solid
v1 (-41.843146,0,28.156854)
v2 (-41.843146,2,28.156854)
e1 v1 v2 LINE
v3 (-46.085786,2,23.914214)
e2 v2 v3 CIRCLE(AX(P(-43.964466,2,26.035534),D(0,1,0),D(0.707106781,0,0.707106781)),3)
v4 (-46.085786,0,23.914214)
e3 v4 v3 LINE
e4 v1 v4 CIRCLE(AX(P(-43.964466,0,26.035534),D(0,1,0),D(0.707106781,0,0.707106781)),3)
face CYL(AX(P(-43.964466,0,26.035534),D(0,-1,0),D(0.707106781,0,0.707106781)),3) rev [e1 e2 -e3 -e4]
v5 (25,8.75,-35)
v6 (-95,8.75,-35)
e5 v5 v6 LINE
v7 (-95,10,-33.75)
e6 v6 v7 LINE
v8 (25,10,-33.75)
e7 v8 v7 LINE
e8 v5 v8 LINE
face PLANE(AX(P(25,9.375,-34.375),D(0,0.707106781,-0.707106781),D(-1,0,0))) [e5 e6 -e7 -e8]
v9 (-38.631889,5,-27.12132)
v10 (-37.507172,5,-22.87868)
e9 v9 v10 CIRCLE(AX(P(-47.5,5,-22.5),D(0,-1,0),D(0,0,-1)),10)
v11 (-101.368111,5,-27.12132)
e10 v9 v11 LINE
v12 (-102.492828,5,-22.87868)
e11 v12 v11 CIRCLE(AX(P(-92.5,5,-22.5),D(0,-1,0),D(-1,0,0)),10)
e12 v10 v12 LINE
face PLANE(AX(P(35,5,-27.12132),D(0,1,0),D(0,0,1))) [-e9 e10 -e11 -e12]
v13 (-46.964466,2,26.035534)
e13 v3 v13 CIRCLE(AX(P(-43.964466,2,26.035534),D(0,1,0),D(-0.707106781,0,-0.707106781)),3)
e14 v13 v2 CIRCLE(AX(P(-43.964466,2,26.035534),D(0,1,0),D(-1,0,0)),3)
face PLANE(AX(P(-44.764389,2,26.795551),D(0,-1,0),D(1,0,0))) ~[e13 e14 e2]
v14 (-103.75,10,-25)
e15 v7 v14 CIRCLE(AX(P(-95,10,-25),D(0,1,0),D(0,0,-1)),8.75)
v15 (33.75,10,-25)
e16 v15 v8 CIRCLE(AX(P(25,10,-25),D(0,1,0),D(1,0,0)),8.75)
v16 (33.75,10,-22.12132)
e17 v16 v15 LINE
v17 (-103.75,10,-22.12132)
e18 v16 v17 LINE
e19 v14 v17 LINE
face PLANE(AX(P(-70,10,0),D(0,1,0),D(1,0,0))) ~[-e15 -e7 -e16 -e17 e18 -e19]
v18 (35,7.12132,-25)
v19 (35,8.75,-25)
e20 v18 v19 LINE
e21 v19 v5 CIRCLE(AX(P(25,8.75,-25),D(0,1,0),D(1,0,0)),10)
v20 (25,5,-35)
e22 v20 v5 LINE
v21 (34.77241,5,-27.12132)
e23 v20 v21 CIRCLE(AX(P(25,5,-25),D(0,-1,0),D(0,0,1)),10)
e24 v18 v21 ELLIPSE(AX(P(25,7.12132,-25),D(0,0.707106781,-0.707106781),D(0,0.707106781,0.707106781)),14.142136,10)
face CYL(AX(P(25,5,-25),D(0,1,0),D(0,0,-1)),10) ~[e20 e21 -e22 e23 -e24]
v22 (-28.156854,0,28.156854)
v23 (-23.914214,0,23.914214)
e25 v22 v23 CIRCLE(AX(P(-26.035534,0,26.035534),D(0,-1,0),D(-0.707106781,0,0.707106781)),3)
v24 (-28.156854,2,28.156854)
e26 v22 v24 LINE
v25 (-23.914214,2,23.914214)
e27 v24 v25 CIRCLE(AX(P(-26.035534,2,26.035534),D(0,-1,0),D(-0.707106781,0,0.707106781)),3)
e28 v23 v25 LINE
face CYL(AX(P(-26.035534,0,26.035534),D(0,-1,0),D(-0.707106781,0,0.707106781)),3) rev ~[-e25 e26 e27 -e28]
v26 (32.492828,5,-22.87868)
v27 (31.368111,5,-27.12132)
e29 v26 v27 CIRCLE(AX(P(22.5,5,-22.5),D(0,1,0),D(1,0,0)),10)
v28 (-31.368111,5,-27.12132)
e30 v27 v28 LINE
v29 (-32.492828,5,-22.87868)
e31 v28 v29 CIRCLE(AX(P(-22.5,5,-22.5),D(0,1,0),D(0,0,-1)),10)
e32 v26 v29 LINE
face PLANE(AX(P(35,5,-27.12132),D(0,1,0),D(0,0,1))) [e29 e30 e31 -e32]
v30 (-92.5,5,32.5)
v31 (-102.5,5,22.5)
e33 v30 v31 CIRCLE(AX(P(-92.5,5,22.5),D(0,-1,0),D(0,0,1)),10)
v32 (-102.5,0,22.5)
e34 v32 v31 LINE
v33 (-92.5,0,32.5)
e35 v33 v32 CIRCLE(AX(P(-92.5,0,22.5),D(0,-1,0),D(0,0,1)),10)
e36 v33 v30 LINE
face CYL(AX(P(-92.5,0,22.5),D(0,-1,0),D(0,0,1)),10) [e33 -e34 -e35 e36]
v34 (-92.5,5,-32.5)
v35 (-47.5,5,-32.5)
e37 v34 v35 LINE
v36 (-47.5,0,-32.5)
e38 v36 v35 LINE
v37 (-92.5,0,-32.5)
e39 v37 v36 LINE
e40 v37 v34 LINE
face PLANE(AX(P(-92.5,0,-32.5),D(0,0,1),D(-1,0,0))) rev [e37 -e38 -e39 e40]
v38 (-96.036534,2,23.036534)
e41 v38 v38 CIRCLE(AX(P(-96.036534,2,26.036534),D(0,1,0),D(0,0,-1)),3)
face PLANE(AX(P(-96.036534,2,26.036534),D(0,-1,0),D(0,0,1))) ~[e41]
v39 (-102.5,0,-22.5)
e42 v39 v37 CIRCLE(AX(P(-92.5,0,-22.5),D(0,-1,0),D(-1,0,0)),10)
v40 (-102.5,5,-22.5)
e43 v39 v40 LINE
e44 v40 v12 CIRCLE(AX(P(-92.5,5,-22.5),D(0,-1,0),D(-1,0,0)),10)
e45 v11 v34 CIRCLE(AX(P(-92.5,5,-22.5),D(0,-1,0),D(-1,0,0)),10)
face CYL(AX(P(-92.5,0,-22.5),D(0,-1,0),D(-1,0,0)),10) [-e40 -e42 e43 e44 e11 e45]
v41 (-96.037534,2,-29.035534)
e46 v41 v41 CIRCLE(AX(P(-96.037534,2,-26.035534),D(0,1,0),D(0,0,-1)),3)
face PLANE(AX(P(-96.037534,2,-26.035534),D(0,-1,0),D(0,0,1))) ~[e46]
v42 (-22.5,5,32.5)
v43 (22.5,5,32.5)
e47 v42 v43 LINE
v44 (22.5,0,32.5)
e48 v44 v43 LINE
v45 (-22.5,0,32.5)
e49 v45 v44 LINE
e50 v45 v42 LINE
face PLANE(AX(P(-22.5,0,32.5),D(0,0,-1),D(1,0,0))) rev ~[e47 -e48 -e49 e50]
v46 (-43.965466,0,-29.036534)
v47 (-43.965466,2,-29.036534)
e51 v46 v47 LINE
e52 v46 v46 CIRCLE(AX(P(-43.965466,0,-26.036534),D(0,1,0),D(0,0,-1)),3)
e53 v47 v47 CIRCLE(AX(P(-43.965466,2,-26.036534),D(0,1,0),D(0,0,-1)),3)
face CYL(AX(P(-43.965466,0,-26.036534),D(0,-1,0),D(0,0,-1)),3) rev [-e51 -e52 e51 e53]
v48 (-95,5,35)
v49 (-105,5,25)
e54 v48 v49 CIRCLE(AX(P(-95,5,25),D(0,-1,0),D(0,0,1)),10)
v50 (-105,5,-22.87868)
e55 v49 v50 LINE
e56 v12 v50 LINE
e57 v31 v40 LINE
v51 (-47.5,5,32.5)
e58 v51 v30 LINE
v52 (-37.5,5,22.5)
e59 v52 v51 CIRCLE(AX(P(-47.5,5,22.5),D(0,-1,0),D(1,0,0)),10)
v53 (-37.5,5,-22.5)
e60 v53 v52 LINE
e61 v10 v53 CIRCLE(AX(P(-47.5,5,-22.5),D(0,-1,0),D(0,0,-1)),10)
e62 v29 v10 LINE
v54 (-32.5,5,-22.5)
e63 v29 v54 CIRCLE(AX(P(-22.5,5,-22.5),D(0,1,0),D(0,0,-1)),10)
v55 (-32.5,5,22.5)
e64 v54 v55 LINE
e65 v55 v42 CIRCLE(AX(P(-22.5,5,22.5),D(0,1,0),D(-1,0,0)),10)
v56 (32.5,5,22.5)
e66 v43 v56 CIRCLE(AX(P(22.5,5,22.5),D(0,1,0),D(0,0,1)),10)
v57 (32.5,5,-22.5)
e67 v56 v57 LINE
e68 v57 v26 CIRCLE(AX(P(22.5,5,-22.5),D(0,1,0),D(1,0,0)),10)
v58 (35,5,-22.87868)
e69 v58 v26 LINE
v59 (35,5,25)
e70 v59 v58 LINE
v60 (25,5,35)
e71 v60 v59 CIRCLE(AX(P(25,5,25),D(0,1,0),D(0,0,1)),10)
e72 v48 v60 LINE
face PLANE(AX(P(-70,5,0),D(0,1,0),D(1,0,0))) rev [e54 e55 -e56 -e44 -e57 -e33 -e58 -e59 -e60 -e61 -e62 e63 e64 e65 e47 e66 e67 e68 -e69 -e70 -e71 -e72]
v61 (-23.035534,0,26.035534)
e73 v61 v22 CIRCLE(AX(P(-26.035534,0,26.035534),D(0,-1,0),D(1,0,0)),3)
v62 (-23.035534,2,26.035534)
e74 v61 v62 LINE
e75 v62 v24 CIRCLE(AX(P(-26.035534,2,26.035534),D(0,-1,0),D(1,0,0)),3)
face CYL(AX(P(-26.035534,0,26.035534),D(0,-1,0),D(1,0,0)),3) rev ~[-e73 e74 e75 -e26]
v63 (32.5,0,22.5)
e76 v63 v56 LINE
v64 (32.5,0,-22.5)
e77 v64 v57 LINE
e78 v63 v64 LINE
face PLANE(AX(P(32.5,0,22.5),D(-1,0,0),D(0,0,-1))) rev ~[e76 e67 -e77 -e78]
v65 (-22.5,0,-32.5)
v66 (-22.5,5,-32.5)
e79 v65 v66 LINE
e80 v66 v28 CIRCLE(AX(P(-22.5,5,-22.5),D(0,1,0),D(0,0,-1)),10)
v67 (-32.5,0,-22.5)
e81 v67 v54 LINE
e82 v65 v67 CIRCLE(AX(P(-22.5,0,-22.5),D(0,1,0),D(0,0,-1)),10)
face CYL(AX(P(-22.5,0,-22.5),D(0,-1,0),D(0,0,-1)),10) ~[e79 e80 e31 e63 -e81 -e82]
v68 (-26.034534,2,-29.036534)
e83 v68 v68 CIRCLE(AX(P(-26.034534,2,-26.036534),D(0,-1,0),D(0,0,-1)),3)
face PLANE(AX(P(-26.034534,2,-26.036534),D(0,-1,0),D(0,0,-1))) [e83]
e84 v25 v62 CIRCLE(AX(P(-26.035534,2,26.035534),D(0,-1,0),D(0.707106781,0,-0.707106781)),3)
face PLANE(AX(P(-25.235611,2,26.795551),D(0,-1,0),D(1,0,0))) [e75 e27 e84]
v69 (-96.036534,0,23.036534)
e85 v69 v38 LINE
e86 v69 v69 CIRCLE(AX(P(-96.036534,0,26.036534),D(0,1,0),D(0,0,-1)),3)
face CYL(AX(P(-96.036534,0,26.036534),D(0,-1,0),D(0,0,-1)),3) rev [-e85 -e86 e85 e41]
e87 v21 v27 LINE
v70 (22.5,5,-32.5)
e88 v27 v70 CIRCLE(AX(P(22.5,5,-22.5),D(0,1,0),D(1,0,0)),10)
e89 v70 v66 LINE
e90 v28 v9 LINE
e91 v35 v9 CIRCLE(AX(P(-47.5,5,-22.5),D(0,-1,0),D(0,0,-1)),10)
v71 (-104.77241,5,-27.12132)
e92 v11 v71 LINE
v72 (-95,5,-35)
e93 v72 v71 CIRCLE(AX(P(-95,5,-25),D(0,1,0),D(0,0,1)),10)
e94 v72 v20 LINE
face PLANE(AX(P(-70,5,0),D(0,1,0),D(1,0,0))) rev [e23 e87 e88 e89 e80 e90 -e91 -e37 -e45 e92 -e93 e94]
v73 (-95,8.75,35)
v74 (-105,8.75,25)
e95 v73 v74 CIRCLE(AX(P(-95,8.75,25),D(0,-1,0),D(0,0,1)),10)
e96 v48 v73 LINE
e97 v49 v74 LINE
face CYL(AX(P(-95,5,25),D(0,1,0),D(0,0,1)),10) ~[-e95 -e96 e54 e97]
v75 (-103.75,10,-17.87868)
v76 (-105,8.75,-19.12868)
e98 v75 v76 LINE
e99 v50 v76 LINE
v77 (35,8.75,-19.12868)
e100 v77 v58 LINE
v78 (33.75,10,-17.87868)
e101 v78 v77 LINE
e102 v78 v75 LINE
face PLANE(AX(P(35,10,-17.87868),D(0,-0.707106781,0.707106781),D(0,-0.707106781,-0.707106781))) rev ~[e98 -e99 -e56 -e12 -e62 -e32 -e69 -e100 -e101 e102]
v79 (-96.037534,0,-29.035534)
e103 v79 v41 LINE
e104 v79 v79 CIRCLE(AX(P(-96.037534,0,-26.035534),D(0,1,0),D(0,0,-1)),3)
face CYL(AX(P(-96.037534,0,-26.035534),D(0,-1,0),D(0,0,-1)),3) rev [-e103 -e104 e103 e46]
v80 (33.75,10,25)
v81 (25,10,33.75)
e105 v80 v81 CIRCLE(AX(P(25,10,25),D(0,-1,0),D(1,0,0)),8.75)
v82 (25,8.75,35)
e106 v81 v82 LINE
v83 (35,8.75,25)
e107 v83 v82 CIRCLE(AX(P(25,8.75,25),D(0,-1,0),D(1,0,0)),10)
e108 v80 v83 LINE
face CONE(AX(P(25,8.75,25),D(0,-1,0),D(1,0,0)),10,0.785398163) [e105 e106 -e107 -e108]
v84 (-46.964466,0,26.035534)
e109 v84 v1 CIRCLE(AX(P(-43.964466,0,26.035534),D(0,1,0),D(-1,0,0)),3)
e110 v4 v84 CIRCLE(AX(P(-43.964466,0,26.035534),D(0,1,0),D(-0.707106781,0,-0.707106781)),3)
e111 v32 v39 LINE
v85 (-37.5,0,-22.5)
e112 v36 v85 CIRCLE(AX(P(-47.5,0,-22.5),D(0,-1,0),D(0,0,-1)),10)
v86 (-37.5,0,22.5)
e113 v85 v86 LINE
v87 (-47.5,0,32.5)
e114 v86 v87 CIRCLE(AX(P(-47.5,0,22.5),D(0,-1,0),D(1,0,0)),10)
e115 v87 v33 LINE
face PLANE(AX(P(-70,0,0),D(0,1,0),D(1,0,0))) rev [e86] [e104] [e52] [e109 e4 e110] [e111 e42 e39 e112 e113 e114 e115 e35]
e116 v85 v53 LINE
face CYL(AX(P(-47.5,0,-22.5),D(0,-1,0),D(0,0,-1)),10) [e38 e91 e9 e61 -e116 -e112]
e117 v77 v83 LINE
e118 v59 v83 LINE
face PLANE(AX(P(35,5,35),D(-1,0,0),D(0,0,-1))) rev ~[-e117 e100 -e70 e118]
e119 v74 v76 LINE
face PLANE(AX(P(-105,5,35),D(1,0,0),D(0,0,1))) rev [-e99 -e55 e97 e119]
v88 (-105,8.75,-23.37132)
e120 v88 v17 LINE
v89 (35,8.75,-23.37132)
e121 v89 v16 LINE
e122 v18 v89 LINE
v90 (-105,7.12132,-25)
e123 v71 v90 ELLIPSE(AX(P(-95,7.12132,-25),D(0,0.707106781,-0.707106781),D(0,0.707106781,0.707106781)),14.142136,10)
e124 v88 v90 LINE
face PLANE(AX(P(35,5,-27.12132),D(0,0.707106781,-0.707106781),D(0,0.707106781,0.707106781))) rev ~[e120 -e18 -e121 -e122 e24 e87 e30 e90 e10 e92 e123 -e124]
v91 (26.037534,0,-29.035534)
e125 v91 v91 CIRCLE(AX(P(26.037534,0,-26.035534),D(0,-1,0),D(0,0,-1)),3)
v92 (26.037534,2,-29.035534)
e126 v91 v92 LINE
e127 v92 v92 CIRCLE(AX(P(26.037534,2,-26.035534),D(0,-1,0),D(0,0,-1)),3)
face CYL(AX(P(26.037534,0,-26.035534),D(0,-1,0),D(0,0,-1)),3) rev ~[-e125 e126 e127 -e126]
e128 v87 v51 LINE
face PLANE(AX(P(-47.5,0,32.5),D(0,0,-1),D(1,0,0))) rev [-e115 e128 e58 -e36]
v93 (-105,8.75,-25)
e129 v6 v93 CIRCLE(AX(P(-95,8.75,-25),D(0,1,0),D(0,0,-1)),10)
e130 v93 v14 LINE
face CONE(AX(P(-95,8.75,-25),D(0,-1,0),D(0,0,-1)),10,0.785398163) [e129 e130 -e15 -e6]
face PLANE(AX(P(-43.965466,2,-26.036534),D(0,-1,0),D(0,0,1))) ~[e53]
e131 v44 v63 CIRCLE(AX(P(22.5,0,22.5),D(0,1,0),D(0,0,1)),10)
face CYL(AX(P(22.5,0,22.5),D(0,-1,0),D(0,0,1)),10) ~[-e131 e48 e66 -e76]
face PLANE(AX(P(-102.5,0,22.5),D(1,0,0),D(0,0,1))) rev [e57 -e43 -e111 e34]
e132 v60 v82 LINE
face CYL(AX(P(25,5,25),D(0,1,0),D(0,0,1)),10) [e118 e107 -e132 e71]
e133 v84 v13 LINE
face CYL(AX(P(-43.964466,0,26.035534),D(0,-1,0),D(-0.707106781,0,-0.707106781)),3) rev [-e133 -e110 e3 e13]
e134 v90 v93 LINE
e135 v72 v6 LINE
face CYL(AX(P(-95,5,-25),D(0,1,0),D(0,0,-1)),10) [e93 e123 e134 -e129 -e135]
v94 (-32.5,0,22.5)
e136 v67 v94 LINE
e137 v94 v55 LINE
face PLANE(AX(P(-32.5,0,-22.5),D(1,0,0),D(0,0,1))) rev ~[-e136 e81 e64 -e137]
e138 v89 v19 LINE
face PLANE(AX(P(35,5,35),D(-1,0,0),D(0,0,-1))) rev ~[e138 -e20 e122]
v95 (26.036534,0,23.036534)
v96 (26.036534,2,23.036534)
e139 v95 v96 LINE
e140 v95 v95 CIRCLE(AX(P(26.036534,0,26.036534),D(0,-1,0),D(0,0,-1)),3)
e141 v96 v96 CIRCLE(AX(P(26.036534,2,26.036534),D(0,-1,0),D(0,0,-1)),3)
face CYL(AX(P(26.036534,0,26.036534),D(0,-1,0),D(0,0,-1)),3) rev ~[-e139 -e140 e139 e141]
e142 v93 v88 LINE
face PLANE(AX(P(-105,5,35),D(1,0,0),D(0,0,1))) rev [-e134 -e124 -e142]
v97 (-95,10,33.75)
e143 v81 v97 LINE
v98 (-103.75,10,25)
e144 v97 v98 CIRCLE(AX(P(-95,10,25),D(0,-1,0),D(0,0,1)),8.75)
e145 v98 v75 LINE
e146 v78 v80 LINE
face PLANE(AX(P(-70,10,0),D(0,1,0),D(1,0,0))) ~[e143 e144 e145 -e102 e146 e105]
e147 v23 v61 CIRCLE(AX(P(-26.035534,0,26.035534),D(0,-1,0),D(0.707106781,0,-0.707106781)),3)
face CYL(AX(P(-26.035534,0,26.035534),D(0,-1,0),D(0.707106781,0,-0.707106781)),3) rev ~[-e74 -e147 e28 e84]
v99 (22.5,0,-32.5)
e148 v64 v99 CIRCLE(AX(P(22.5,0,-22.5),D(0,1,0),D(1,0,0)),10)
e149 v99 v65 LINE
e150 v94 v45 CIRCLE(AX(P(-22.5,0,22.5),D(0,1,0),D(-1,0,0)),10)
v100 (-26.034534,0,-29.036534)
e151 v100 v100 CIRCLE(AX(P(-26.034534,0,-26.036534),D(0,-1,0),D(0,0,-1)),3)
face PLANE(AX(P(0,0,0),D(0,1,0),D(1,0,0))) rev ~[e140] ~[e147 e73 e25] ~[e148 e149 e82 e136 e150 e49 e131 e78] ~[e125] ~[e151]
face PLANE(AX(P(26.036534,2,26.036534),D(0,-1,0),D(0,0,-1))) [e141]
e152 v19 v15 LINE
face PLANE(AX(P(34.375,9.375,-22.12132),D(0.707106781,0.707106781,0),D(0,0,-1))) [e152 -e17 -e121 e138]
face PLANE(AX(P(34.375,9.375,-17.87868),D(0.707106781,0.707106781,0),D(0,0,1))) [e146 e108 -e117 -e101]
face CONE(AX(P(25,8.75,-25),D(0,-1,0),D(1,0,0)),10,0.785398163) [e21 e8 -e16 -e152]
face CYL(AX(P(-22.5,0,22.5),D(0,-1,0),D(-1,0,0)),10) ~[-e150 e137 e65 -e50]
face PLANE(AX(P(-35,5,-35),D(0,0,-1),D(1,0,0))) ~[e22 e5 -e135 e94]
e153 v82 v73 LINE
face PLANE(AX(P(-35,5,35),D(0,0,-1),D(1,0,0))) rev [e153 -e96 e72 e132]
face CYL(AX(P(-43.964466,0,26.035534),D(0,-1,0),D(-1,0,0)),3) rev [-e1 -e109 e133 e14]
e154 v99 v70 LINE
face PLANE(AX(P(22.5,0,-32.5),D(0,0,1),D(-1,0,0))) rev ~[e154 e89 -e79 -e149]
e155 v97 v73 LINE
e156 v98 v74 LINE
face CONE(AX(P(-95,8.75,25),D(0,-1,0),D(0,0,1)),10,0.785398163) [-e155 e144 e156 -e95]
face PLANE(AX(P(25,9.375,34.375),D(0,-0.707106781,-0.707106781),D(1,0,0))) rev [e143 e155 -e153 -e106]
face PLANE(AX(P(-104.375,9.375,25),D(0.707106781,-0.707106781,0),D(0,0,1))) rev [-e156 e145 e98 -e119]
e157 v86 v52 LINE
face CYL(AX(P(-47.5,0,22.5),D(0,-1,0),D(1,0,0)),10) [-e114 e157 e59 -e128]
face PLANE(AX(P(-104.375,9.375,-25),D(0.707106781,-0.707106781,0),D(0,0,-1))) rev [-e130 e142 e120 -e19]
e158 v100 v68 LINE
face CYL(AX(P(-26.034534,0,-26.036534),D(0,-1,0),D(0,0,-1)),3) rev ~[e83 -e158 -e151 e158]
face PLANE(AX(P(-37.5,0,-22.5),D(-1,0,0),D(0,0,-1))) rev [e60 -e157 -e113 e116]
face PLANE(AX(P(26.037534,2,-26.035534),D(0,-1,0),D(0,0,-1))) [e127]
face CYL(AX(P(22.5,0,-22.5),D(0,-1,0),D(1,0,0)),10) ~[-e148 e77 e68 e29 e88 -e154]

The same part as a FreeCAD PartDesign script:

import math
import FreeCAD as App
import Part
import Sketcher

V = App.Vector
Q = App.Units.Quantity


def edges_at(feature, points):
    """Names of the edges that pass closest to the given points."""
    edges = feature.Shape.Edges
    near = lambda p: min(range(len(edges)), key=lambda i: edges[i].distToShape(Part.Vertex(*p))[0])
    return sorted({f"Edge{near(p) + 1}" for p in points})

doc = App.newDocument("Part")
body = doc.addObject("PartDesign::Body", "Body")

sketch1 = body.newObject("Sketcher::SketchObject", "Sketch")
sketch1.AttachmentSupport = (doc.getObject("XZ_Plane"), [""])
sketch1.MapMode = "FlatFace"
sketch1.addGeometry([
    Part.LineSegment(V(-22, 32, 0), V(22, 32, 0)),
    Part.ArcOfCircle(Part.Circle(V(22, 22, 0), V(0, 0, 1), 10), math.radians(0), math.radians(90)),
    Part.LineSegment(V(32, 22, 0), V(32, -22, 0)),
    Part.ArcOfCircle(Part.Circle(V(22, -22, 0), V(0, 0, 1), 10), math.radians(-90), math.radians(0)),
    Part.LineSegment(V(22, -32, 0), V(-22, -32, 0)),
    Part.ArcOfCircle(Part.Circle(V(-22, -22, 0), V(0, 0, 1), 10), math.radians(180), math.radians(270)),
    Part.LineSegment(V(-32, -22, 0), V(-32, 22, 0)),
    Part.ArcOfCircle(Part.Circle(V(-22, 22, 0), V(0, 0, 1), 10), math.radians(90), math.radians(180)),
], False)
sketch1.addConstraint([
    Sketcher.Constraint("Tangent", 0, 2, 1, 2),
    Sketcher.Constraint("Tangent", 1, 1, 2, 1),
    Sketcher.Constraint("Tangent", 2, 2, 3, 2),
    Sketcher.Constraint("Tangent", 3, 1, 4, 1),
    Sketcher.Constraint("Tangent", 4, 2, 5, 2),
    Sketcher.Constraint("Tangent", 5, 1, 6, 1),
    Sketcher.Constraint("Tangent", 6, 2, 7, 2),
    Sketcher.Constraint("Tangent", 7, 1, 0, 1),
    Sketcher.Constraint("Horizontal", 0),
    Sketcher.Constraint("Vertical", 2),
    Sketcher.Constraint("Horizontal", 4),
    Sketcher.Constraint("Vertical", 6),
    Sketcher.Constraint("Equal", 1, 3),
    Sketcher.Constraint("Equal", 3, 5),
    Sketcher.Constraint("Equal", 5, 7),
    Sketcher.Constraint("Symmetric", 1, 3, 5, 3, -1, 1),
    Sketcher.Constraint("Equal", 4, 2),
    Sketcher.Constraint("Radius", 1, 10.0),
    Sketcher.Constraint("DistanceX", 0, 1, 0, 2, 45.0),
])
pad1 = body.newObject("PartDesign::Pad", "Pad")
pad1.Profile = sketch1
pad1.Length = 5
pad1.Reversed = True

sketch2 = body.newObject("Sketcher::SketchObject", "Sketch001")
sketch2.AttachmentSupport = (doc.getObject("XZ_Plane"), [""])
sketch2.MapMode = "FlatFace"
sketch2.AttachmentOffset = App.Placement(V(0, 0, -5), App.Rotation())
sketch2.addGeometry([
    Part.LineSegment(V(-35, -35, 0), V(-35, 35, 0)),
    Part.LineSegment(V(-35, 35, 0), V(35, 35, 0)),
    Part.LineSegment(V(35, 35, 0), V(35, -35, 0)),
    Part.LineSegment(V(35, -35, 0), V(-35, -35, 0)),
], False)
sketch2.addConstraint([
    Sketcher.Constraint("Coincident", 0, 2, 1, 1),
    Sketcher.Constraint("Coincident", 1, 2, 2, 1),
    Sketcher.Constraint("Coincident", 2, 2, 3, 1),
    Sketcher.Constraint("Coincident", 3, 2, 0, 1),
    Sketcher.Constraint("Vertical", 0),
    Sketcher.Constraint("Horizontal", 1),
    Sketcher.Constraint("Vertical", 2),
    Sketcher.Constraint("Horizontal", 3),
    Sketcher.Constraint("Symmetric", 0, 2, 2, 2, -1, 1),
    Sketcher.Constraint("Equal", 3, 0),
    Sketcher.Constraint("DistanceX", 1, 1, 1, 2, 70.0),
])
pad2 = body.newObject("PartDesign::Pad", "Pad001")
pad2.Profile = sketch2
pad2.Length = 5
pad2.Reversed = True

sketch3 = body.newObject("Sketcher::SketchObject", "Sketch002")
sketch3.AttachmentSupport = (doc.getObject("XZ_Plane"), [""])
sketch3.MapMode = "FlatFace"
sketch3.addGeometry([
    Part.Circle(V(26, -26, 0), V(0, 0, 1), 3),
    Part.Circle(V(26, 26, 0), V(0, 0, 1), 3),
    Part.ArcOfCircle(Part.Circle(V(-26, 26, 0), V(0, 0, 1), 3), math.radians(0), math.radians(135)),
    Part.ArcOfCircle(Part.Circle(V(-26, 26, 0), V(0, 0, 1), 3), math.radians(135), math.radians(315)),
    Part.ArcOfCircle(Part.Circle(V(-26, 26, 0), V(0, 0, 1), 3), math.radians(-45), math.radians(0)),
    Part.Circle(V(-26, -26, 0), V(0, 0, 1), 3),
], False)
sketch3.addConstraint([
    Sketcher.Constraint("Tangent", 2, 2, 3, 1),
    Sketcher.Constraint("Tangent", 3, 2, 4, 1),
    Sketcher.Constraint("Tangent", 4, 2, 2, 1),
    Sketcher.Constraint("Equal", 0, 1),
    Sketcher.Constraint("Equal", 1, 2),
    Sketcher.Constraint("Equal", 4, 5),
    Sketcher.Constraint("Horizontal", 3, 3, 4, 2),
    Sketcher.Constraint("Diameter", 0, 6.0),
    Sketcher.Constraint("DistanceX", 1, 3, 0, 3, 0.001),
    Sketcher.Constraint("DistanceY", 2, 3, 1, 3, 0.001),
    Sketcher.Constraint("DistanceX", 3, 3, 5, 3, 0.001),
    Sketcher.Constraint("DistanceY", 5, 3, 0, 3, 0.001),
    Sketcher.Constraint("DistanceX", 2, 2, 2, 3, 2.12132),
    Sketcher.Constraint("DistanceX", 2, 2, 1, 3, 54.193388),
    Sketcher.Constraint("DistanceY", 5, 3, 2, 2, 54.193388),
    Sketcher.Constraint("DistanceX", 3, 3, 3, 2, 2.12132),
    Sketcher.Constraint("DistanceX", -1, 1, 0, 3, 26.037534),
    Sketcher.Constraint("DistanceY", 0, 3, -1, 1, 26.035534),
])
pocket1 = body.newObject("PartDesign::Pocket", "Pocket")
pocket1.Profile = sketch3
pocket1.Length = 2
body2 = doc.addObject("PartDesign::Body", "Body001")
doc.recompute()

body2.BaseFeature = body
doc.recompute()

mirroring = doc.addObject("Part::Mirroring", "Mirroring")
mirroring.Source = body
mirroring.Base = V(-35, 10, -35)
mirroring.Normal = V(1, 0, 0)
body3 = doc.addObject("PartDesign::Body", "Body002")
body3.BaseFeature = mirroring
boolean = body2.newObject("PartDesign::Boolean", "Boolean")
boolean.Type = "Fuse"
boolean.addObjects([body3])
doc.recompute()

fillet = body2.newObject("PartDesign::Fillet", "Fillet")
fillet.Base = (boolean, edges_at(boolean, [
    (35, 7.5, 35),
    (35, 7.5, -35),
    (-105, 7.5, 35),
    (-105, 7.5, -35),
]))
fillet.Radius = 10

sketch4 = body2.newObject("Sketcher::SketchObject", "Sketch003")
sketch4.AttachmentSupport = (doc.getObject("YZ_Plane001"), [""])
sketch4.MapMode = "FlatFace"
sketch4.AttachmentOffset = App.Placement(V(0, 0, 35), App.Rotation())
sketch4.addGeometry([
    Part.LineSegment(V(10, -22.1, 0), V(10, -17.9, 0)),
    Part.LineSegment(V(10, -17.9, 0), V(5, -22.9, 0)),
    Part.LineSegment(V(5, -22.9, 0), V(5, -27.1, 0)),
    Part.LineSegment(V(5, -27.1, 0), V(10, -22.1, 0)),
], False)
sketch4.addConstraint([
    Sketcher.Constraint("Coincident", 0, 2, 1, 1),
    Sketcher.Constraint("Coincident", 1, 2, 2, 1),
    Sketcher.Constraint("Coincident", 2, 2, 3, 1),
    Sketcher.Constraint("Coincident", 3, 2, 0, 1),
    Sketcher.Constraint("Vertical", 0),
    Sketcher.Constraint("Vertical", 2),
    Sketcher.Constraint("Parallel", 1, 3),
    Sketcher.Constraint("Angle", 1, Q("-135 deg")),
    Sketcher.Constraint("DistanceX", -1, 1, 0, 2, 10.0),
    Sketcher.Constraint("DistanceX", -1, 1, 1, 2, 5.0),
    Sketcher.Constraint("DistanceY", 0, 1, 0, 2, 4.242641),
    Sketcher.Constraint("DistanceY", 0, 2, -1, 1, 17.87868),
])
pocket2 = body2.newObject("PartDesign::Pocket", "Pocket001")
pocket2.Profile = sketch4
pocket2.Type = "ThroughAll"
doc.recompute()

chamfer = body2.newObject("PartDesign::Chamfer", "Chamfer")
chamfer.Base = (pocket2, edges_at(pocket2, [
    (-105, 10, 3.561),
    (-35, 10, -35),
    (-35, 10, 35),
    (35, 10, 3.561),
    (32.071, 10, -32.071),
    (32.071, 10, 32.071),
    (-102.071, 10, 32.071),
    (-102.071, 10, -32.071),
    (-105, 10, -23.561),
    (35, 10, -23.561),
]))
chamfer.Size = 1.25
mirroring.Visibility = False

doc.recompute()
